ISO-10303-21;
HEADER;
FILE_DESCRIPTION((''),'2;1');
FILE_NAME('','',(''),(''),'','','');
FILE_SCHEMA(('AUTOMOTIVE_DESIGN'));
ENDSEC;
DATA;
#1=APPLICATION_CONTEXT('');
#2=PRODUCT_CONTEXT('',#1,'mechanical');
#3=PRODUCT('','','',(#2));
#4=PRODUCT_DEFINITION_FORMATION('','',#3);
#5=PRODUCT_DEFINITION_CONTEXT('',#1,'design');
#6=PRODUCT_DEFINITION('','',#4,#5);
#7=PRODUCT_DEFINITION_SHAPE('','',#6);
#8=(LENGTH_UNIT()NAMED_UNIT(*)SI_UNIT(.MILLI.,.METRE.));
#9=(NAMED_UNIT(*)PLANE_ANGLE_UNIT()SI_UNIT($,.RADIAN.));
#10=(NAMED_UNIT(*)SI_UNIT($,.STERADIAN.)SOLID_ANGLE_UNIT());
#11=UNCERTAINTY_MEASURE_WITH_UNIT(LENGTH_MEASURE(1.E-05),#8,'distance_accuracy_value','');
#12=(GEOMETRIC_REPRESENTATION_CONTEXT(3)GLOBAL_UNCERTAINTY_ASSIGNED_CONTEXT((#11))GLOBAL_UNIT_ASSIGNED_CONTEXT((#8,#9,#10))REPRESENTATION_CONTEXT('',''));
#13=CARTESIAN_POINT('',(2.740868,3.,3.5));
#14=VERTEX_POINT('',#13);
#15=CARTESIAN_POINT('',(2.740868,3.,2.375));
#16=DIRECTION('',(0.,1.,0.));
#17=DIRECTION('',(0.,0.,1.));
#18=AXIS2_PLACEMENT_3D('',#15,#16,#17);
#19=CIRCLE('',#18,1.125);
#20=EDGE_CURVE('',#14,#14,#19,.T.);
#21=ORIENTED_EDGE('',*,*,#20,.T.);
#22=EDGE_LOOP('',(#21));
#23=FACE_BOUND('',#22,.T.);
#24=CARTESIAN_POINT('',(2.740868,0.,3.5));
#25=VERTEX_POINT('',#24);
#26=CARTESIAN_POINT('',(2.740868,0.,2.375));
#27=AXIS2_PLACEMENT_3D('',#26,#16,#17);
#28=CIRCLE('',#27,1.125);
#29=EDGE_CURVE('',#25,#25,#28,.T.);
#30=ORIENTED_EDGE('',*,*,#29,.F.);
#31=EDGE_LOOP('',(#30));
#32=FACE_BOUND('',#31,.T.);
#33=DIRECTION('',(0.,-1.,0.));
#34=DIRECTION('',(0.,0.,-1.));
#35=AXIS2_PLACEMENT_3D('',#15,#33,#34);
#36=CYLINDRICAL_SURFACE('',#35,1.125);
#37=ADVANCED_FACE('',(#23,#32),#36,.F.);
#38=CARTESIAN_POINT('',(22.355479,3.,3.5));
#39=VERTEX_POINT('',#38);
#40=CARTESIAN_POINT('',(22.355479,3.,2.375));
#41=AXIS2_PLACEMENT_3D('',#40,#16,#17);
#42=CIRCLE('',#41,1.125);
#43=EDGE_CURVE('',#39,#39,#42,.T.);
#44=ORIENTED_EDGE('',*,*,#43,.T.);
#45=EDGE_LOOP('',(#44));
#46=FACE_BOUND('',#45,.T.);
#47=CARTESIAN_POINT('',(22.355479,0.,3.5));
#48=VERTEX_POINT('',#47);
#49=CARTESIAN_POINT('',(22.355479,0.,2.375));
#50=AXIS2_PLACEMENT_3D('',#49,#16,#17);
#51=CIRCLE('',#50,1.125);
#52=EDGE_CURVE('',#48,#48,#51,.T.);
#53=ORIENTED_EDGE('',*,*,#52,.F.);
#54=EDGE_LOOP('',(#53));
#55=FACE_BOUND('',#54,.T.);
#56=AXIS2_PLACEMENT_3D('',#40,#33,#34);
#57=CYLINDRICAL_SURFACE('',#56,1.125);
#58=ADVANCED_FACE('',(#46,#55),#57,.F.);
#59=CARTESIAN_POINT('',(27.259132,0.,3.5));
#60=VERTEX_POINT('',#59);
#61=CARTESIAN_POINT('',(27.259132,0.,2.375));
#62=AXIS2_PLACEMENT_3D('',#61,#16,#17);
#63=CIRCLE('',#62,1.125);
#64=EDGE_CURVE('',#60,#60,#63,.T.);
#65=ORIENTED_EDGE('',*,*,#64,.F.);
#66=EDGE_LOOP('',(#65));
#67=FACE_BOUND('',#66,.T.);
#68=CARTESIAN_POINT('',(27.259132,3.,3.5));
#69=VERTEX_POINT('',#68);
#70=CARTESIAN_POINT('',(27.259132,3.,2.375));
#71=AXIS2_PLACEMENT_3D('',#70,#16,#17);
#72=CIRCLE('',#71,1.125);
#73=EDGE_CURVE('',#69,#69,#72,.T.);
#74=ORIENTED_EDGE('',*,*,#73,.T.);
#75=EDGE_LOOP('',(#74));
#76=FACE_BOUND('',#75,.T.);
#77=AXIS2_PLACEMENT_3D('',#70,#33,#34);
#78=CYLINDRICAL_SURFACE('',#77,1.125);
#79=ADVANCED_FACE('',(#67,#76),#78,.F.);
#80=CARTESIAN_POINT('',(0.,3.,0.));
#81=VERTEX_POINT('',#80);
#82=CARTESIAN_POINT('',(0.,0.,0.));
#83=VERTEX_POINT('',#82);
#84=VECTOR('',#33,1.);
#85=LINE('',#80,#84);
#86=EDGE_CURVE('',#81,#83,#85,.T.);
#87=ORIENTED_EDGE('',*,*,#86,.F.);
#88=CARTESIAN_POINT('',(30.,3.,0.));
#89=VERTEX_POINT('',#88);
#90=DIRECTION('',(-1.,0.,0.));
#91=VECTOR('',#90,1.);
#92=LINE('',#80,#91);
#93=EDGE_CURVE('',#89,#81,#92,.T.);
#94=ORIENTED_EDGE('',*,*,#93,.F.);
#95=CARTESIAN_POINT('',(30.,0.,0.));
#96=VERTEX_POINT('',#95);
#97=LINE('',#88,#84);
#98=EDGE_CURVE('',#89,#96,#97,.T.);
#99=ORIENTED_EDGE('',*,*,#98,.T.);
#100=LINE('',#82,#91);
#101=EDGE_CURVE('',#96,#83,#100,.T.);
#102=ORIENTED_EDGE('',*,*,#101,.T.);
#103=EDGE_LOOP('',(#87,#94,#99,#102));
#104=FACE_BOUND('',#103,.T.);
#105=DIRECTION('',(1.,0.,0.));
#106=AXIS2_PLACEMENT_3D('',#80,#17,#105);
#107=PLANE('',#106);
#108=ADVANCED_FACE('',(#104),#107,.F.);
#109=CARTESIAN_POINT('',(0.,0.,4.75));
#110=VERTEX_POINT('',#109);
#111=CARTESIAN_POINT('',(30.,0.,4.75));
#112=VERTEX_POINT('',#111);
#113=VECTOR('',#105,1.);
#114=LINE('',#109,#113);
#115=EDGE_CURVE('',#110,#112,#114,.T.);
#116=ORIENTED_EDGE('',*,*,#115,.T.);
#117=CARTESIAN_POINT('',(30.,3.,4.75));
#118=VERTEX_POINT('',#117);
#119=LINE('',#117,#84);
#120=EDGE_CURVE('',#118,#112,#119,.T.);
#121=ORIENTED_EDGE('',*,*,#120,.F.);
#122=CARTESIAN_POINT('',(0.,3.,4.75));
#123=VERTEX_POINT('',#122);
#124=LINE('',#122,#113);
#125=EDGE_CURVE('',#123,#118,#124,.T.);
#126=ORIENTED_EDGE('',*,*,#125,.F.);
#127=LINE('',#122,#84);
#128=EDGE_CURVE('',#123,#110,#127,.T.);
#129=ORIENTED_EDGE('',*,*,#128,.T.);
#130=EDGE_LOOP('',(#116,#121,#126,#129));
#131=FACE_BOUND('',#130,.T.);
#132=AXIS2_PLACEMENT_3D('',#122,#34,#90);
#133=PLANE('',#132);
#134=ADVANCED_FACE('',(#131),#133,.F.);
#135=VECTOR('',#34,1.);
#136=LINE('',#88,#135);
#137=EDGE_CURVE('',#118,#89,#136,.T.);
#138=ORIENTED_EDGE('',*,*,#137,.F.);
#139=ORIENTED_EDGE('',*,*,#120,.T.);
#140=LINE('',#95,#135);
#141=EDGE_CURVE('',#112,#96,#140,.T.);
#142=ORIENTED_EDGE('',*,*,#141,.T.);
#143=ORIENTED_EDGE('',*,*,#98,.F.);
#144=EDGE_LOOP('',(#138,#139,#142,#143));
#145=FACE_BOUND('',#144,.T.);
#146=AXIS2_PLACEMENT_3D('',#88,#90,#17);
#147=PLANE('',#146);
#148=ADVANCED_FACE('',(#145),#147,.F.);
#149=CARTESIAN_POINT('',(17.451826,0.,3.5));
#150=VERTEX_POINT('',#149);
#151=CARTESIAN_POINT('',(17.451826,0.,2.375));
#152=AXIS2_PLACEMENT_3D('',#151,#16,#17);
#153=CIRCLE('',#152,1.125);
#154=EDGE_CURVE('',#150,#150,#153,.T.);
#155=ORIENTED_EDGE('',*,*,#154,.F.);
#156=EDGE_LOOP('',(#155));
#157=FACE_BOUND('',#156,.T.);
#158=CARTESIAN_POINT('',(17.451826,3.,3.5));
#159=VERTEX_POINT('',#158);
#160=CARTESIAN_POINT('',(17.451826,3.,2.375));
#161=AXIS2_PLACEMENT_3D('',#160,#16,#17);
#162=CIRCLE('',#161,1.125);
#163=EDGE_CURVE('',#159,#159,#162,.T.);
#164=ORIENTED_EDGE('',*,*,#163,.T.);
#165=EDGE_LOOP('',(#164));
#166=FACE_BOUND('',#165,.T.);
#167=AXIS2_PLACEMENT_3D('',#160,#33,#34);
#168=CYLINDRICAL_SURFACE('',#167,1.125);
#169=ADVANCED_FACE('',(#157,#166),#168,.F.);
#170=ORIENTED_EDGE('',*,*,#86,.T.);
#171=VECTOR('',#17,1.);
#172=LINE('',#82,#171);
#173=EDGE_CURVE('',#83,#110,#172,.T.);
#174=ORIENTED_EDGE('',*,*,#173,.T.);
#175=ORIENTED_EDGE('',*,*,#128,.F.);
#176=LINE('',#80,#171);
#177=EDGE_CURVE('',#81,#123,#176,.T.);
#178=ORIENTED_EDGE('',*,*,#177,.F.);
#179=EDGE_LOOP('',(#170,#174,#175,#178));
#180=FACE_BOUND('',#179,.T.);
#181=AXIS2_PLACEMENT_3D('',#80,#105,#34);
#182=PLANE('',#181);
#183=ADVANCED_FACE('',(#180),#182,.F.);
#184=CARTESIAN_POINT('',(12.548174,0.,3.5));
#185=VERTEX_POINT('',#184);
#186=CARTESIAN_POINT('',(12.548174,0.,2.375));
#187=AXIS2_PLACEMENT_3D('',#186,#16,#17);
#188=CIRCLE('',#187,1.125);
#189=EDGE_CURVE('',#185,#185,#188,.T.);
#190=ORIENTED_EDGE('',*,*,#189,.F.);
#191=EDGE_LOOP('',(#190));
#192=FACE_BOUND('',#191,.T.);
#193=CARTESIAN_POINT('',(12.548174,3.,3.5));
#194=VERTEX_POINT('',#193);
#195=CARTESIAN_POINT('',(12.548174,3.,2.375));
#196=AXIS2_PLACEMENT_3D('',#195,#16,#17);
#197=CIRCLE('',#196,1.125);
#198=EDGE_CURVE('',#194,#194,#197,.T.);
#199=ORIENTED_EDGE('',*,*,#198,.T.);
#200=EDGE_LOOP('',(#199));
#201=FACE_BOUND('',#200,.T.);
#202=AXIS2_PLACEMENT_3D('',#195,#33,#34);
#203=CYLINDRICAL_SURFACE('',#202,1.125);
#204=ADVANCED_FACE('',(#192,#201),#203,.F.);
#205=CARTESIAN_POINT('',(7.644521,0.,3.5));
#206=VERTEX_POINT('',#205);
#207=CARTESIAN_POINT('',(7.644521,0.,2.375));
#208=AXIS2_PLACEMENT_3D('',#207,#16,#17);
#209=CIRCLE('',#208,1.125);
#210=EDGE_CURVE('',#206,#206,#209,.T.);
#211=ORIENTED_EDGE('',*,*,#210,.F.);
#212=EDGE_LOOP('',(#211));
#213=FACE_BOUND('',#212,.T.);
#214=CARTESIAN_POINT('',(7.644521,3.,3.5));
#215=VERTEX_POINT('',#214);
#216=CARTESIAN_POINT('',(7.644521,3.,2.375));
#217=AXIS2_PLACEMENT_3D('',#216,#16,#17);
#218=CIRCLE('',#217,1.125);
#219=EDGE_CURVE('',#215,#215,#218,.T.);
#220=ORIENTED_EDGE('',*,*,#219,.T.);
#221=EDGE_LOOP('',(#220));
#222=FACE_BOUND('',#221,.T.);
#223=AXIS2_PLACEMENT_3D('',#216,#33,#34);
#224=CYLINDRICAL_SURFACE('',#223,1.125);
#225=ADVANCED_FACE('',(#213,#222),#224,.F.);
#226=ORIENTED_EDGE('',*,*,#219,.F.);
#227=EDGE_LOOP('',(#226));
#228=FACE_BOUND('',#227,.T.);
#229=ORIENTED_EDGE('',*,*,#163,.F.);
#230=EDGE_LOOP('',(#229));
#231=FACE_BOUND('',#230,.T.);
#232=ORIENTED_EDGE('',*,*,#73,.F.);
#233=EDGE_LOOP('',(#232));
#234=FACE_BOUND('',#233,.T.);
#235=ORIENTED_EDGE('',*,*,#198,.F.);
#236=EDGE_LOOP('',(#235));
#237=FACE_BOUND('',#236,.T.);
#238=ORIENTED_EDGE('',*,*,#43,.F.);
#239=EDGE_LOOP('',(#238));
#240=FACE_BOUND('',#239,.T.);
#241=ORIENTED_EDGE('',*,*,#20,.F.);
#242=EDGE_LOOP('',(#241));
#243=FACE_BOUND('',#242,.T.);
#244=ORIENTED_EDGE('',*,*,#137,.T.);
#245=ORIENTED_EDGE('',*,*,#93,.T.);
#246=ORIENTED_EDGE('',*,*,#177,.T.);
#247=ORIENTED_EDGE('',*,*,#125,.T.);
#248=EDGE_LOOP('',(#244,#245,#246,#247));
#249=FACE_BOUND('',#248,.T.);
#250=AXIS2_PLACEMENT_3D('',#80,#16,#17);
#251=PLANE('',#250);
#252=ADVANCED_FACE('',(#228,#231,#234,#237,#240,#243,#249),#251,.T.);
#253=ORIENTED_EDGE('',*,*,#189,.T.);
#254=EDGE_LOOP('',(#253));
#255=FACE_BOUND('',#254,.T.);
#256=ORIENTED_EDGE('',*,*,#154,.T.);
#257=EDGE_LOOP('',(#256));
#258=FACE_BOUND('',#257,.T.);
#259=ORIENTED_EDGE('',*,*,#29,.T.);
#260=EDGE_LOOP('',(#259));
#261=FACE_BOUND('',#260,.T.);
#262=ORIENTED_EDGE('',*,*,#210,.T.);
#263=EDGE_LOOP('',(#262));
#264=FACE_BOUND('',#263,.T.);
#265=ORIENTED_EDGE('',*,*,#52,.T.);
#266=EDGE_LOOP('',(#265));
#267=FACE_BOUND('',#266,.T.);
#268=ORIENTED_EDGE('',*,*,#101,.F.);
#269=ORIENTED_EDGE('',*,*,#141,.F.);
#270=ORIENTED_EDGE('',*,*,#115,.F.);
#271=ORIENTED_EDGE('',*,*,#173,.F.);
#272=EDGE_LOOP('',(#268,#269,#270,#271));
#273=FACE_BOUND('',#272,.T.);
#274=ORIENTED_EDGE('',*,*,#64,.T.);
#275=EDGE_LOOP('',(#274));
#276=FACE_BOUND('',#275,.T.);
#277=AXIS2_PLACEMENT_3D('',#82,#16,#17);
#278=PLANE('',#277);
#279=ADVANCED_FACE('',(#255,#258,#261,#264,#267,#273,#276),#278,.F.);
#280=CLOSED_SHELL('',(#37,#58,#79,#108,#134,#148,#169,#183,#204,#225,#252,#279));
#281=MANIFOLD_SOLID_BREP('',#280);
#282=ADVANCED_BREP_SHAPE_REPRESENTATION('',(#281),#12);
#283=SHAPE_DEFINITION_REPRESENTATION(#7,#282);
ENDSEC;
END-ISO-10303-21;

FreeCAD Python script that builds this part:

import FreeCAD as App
import Part
import Sketcher


def add_polygon(sketch, points):
    """Adds a closed chain of lines whose ends are joined by coincident constraints."""
    first, n = sketch.GeometryCount, len(points)
    for a, b in zip(points, points[1:] + points[:1]):
        sketch.addGeometry(Part.LineSegment(App.Vector(*a, 0), App.Vector(*b, 0)), False)
    for i in range(n):
        sketch.addConstraint(Sketcher.Constraint("Coincident", first + i, 2, first + (i + 1) % n, 1))

doc = App.newDocument("Part")
params = doc.addObject("Spreadsheet::Sheet", "Params")
for row, (alias, value) in enumerate([
    ("sketch1_diameter", "2.25 mm"),
    ("sketch1_width", "30 mm"),
    ("sketch1_height", "4.75 mm"),
    ("pad1_length", "3 mm"),
], start=1):
    params.set(f"A{row}", alias)
    params.set(f"B{row}", "=" + value)
    params.setAlias(f"B{row}", alias)

body = doc.addObject("PartDesign::Body", "Body")

# Sketch on XZ plane
sketch1 = body.newObject("Sketcher::SketchObject", "Sketch")
sketch1.AttachmentSupport = (doc.getObject("XZ_Plane"), [""])
sketch1.MapMode = "FlatFace"
add_polygon(sketch1, [(0, 0), (0, 4.8), (30, 4.8), (30, 0)])  # lines 0-3
sketch1.addGeometry(Part.Circle(App.Vector(2.7, 2.4, 0), App.Vector(0, 0, 1), 1.1), False)  # 4
sketch1.addGeometry(Part.Circle(App.Vector(7.6, 2.4, 0), App.Vector(0, 0, 1), 1.1), False)  # 5
sketch1.addGeometry(Part.Circle(App.Vector(12.5, 2.4, 0), App.Vector(0, 0, 1), 1.1), False)  # 6
sketch1.addGeometry(Part.Circle(App.Vector(17.5, 2.4, 0), App.Vector(0, 0, 1), 1.1), False)  # 7
sketch1.addGeometry(Part.Circle(App.Vector(22.4, 2.4, 0), App.Vector(0, 0, 1), 1.1), False)  # 8
sketch1.addGeometry(Part.Circle(App.Vector(27.3, 2.4, 0), App.Vector(0, 0, 1), 1.1), False)  # 9
sketch1.addConstraint(Sketcher.Constraint("Vertical", 0))
sketch1.addConstraint(Sketcher.Constraint("Horizontal", 1))
sketch1.addConstraint(Sketcher.Constraint("Vertical", 2))
sketch1.addConstraint(Sketcher.Constraint("Horizontal", 3))
sketch1.addConstraint(Sketcher.Constraint("Coincident", 3, 2, -1, 1))
sketch1.addConstraint(Sketcher.Constraint("Equal", 4, 5))
sketch1.addConstraint(Sketcher.Constraint("Equal", 5, 6))
sketch1.addConstraint(Sketcher.Constraint("Equal", 6, 7))
sketch1.addConstraint(Sketcher.Constraint("Equal", 7, 8))
sketch1.addConstraint(Sketcher.Constraint("Equal", 8, 9))
sketch1.addConstraint(Sketcher.Constraint("Horizontal", 4, 3, 5, 3))
sketch1.addConstraint(Sketcher.Constraint("Horizontal", 5, 3, 6, 3))
sketch1.addConstraint(Sketcher.Constraint("Horizontal", 6, 3, 7, 3))
sketch1.addConstraint(Sketcher.Constraint("Horizontal", 7, 3, 8, 3))
sketch1.addConstraint(Sketcher.Constraint("Horizontal", 8, 3, 9, 3))
sketch1.addConstraint(Sketcher.Constraint("Diameter", 4, 2.25))
sketch1.addConstraint(Sketcher.Constraint("DistanceX", 1, 1, 1, 2, 30.0))
sketch1.addConstraint(Sketcher.Constraint("DistanceY", 0, 1, 0, 2, 4.75))
sketch1.addConstraint(Sketcher.Constraint("DistanceY", -1, 1, 4, 3, 2.375))
sketch1.addConstraint(Sketcher.Constraint("DistanceX", -1, 1, 4, 3, 2.740868))
sketch1.addConstraint(Sketcher.Constraint("DistanceX", -1, 1, 5, 3, 7.644521))
sketch1.addConstraint(Sketcher.Constraint("DistanceX", -1, 1, 8, 3, 22.355479))
sketch1.addConstraint(Sketcher.Constraint("DistanceX", -1, 1, 9, 3, 27.259132))
sketch1.addConstraint(Sketcher.Constraint("DistanceX", 4, 3, 7, 3, 14.710958))
sketch1.addConstraint(Sketcher.Constraint("DistanceX", 6, 3, 9, 3, 14.710958))
sketch1.setExpression("Constraints[19]", "Params.sketch1_diameter")
sketch1.setExpression("Constraints[20]", "Params.sketch1_width")
sketch1.setExpression("Constraints[21]", "Params.sketch1_height")
pad1 = body.newObject("PartDesign::Pad", "Pad")
pad1.Profile = sketch1
pad1.setExpression("Length", "Params.pad1_length")
pad1.Reversed = True

doc.recompute()
